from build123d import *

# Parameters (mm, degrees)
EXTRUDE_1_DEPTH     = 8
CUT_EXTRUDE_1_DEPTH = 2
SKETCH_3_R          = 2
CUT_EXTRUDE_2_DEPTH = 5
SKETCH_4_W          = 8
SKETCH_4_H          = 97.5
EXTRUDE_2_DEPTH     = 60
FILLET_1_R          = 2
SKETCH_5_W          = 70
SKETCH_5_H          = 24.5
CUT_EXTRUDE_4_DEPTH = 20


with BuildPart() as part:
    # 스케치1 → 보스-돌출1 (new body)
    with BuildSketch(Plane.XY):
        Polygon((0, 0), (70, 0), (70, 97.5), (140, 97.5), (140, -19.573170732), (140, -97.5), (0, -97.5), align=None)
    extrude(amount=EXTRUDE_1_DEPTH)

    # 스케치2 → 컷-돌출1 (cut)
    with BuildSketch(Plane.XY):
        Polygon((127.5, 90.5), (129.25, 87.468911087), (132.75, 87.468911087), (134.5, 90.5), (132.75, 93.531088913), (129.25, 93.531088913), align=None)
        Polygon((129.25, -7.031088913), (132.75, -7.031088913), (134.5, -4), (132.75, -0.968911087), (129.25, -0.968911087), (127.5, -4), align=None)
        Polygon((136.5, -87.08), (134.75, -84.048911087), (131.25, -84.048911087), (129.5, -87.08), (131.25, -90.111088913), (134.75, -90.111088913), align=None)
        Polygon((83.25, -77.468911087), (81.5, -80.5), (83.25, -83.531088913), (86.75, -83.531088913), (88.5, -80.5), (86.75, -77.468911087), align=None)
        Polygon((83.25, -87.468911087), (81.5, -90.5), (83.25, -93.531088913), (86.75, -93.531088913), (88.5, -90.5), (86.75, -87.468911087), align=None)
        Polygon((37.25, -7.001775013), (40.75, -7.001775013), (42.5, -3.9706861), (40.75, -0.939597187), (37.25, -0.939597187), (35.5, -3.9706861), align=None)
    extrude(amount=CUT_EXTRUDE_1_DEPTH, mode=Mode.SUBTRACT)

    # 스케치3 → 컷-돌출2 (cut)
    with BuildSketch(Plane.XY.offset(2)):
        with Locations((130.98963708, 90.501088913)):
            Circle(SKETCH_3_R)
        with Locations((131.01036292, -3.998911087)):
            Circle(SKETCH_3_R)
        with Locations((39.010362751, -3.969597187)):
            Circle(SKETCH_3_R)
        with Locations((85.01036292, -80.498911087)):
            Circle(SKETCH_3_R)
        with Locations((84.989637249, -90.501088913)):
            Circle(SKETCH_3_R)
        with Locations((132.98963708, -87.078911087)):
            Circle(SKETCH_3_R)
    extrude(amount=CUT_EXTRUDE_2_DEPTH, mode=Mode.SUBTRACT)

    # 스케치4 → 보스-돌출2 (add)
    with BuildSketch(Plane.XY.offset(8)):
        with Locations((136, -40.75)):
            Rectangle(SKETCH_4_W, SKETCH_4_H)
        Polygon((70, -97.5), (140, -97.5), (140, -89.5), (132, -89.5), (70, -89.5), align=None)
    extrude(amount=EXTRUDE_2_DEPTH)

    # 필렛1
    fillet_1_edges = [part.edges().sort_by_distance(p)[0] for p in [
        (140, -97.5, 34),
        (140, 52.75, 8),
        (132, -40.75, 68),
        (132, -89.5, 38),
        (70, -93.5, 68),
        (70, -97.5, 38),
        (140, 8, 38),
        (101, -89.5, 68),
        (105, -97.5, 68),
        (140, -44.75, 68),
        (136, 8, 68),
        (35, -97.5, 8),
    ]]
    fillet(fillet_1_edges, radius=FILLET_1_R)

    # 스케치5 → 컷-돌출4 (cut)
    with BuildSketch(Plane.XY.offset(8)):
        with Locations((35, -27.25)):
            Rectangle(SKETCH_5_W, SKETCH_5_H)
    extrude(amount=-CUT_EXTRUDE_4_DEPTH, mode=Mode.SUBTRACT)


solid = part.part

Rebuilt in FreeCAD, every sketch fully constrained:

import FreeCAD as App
import Part
import Sketcher
Q = App.Units.Quantity


def edges_at(feature, points):
    """Names of the edges that pass closest to the given points."""
    edges = feature.Shape.Edges
    near = lambda p: min(range(len(edges)), key=lambda i: edges[i].distToShape(Part.Vertex(*p))[0])
    return sorted({f"Edge{near(p) + 1}" for p in points})


def add_polygon(sketch, points):
    """Adds a closed chain of lines whose ends are joined by coincident constraints."""
    first, n = sketch.GeometryCount, len(points)
    for a, b in zip(points, points[1:] + points[:1]):
        sketch.addGeometry(Part.LineSegment(App.Vector(*a, 0), App.Vector(*b, 0)), False)
    for i in range(n):
        sketch.addConstraint(Sketcher.Constraint("Coincident", first + i, 2, first + (i + 1) % n, 1))

doc = App.newDocument("Part")
body = doc.addObject("PartDesign::Body", "Body")

sketch1 = body.newObject("Sketcher::SketchObject", "Sketch")
sketch1.AttachmentSupport = (doc.getObject("XY_Plane"), [""])
sketch1.MapMode = "FlatFace"
add_polygon(sketch1, [(70, 0), (0, 0), (0, -98), (140, -98), (140, 98), (70, 98)])
sketch1.addConstraint(Sketcher.Constraint("Horizontal", 0))
sketch1.addConstraint(Sketcher.Constraint("Vertical", 1))
sketch1.addConstraint(Sketcher.Constraint("Horizontal", 2))
sketch1.addConstraint(Sketcher.Constraint("Vertical", 3))
sketch1.addConstraint(Sketcher.Constraint("Horizontal", 4))
sketch1.addConstraint(Sketcher.Constraint("Vertical", 5))
sketch1.addConstraint(Sketcher.Constraint("Coincident", 0, 2, -1, 1))
sketch1.addConstraint(Sketcher.Constraint("Equal", 0, 4))
sketch1.addConstraint(Sketcher.Constraint("Equal", 1, 5))
sketch1.addConstraint(Sketcher.Constraint("DistanceX", 0, 2, 0, 1, 70.0))
sketch1.addConstraint(Sketcher.Constraint("DistanceY", 3, 1, 3, 2, 195.0))
pad1 = body.newObject("PartDesign::Pad", "Pad")
pad1.Profile = sketch1
pad1.Length = 8

sketch2 = body.newObject("Sketcher::SketchObject", "Sketch001")
sketch2.AttachmentSupport = (doc.getObject("XY_Plane"), [""])
sketch2.MapMode = "FlatFace"
add_polygon(sketch2, [(127.5, 90.5), (129.2, 87.5), (132.8, 87.5), (134.5, 90.5), (132.8, 93.5), (129.2, 93.5)])
add_polygon(sketch2, [(129.2, -7), (132.8, -7), (134.5, -4), (132.8, -1), (129.2, -1), (127.5, -4)])
add_polygon(sketch2, [(136.5, -87.1), (134.8, -84), (131.2, -84), (129.5, -87.1), (131.2, -90.1), (134.8, -90.1)])
add_polygon(sketch2, [(83.2, -77.5), (81.5, -80.5), (83.2, -83.5), (86.8, -83.5), (88.5, -80.5), (86.8, -77.5)])
add_polygon(sketch2, [(83.2, -87.5), (81.5, -90.5), (83.2, -93.5), (86.8, -93.5), (88.5, -90.5), (86.8, -87.5)])
add_polygon(sketch2, [(37.2, -7), (40.8, -7), (42.5, -4), (40.8, -0.9), (37.2, -0.9), (35.5, -4)])
sketch2.addConstraint(Sketcher.Constraint("Horizontal", 1))
sketch2.addConstraint(Sketcher.Constraint("Horizontal", 4))
sketch2.addConstraint(Sketcher.Constraint("Horizontal", 6))
sketch2.addConstraint(Sketcher.Constraint("Horizontal", 9))
sketch2.addConstraint(Sketcher.Constraint("Horizontal", 13))
sketch2.addConstraint(Sketcher.Constraint("Horizontal", 16))
sketch2.addConstraint(Sketcher.Constraint("Horizontal", 20))
sketch2.addConstraint(Sketcher.Constraint("Horizontal", 23))
sketch2.addConstraint(Sketcher.Constraint("Horizontal", 26))
sketch2.addConstraint(Sketcher.Constraint("Horizontal", 29))
sketch2.addConstraint(Sketcher.Constraint("Horizontal", 30))
sketch2.addConstraint(Sketcher.Constraint("Horizontal", 33))
sketch2.addConstraint(Sketcher.Constraint("Parallel", 0, 3))
sketch2.addConstraint(Sketcher.Constraint("Parallel", 2, 5))
sketch2.addConstraint(Sketcher.Constraint("Parallel", 5, 7))
sketch2.addConstraint(Sketcher.Constraint("Parallel", 3, 8))
sketch2.addConstraint(Sketcher.Constraint("Parallel", 7, 10))
sketch2.addConstraint(Sketcher.Constraint("Parallel", 8, 11))
sketch2.addConstraint(Sketcher.Constraint("Parallel", 11, 12))
sketch2.addConstraint(Sketcher.Constraint("Parallel", 10, 14))
sketch2.addConstraint(Sketcher.Constraint("Parallel", 12, 15))
sketch2.addConstraint(Sketcher.Constraint("Parallel", 14, 17))
sketch2.addConstraint(Sketcher.Constraint("Parallel", 17, 18))
sketch2.addConstraint(Sketcher.Constraint("Parallel", 15, 19))
sketch2.addConstraint(Sketcher.Constraint("Parallel", 18, 21))
sketch2.addConstraint(Sketcher.Constraint("Parallel", 19, 22))
sketch2.addConstraint(Sketcher.Constraint("Parallel", 21, 24))
sketch2.addConstraint(Sketcher.Constraint("Parallel", 22, 25))
sketch2.addConstraint(Sketcher.Constraint("Parallel", 24, 27))
sketch2.addConstraint(Sketcher.Constraint("Parallel", 25, 28))
sketch2.addConstraint(Sketcher.Constraint("Parallel", 27, 31))
sketch2.addConstraint(Sketcher.Constraint("Parallel", 28, 32))
sketch2.addConstraint(Sketcher.Constraint("Parallel", 31, 34))
sketch2.addConstraint(Sketcher.Constraint("Parallel", 32, 35))
sketch2.addConstraint(Sketcher.Constraint("Horizontal", 2, 2, 5, 2))
sketch2.addConstraint(Sketcher.Constraint("Horizontal", 7, 2, 10, 2))
sketch2.addConstraint(Sketcher.Constraint("Horizontal", 14, 2, 17, 2))
sketch2.addConstraint(Sketcher.Constraint("Horizontal", 18, 2, 21, 2))
sketch2.addConstraint(Sketcher.Constraint("Horizontal", 24, 2, 27, 2))
sketch2.addConstraint(Sketcher.Constraint("Horizontal", 31, 2, 34, 2))
sketch2.addConstraint(Sketcher.Constraint("Vertical", 1, 2, 3, 2))
sketch2.addConstraint(Sketcher.Constraint("Vertical", 0, 2, 4, 2))
sketch2.addConstraint(Sketcher.Constraint("Vertical", 3, 2, 6, 2))
sketch2.addConstraint(Sketcher.Constraint("Vertical", 2, 2, 7, 2))
sketch2.addConstraint(Sketcher.Constraint("Vertical", 6, 2, 8, 2))
sketch2.addConstraint(Sketcher.Constraint("Vertical", 4, 2, 9, 2))
sketch2.addConstraint(Sketcher.Constraint("Vertical", 13, 2, 15, 2))
sketch2.addConstraint(Sketcher.Constraint("Vertical", 20, 2, 22, 2))
sketch2.addConstraint(Sketcher.Constraint("Vertical", 18, 2, 24, 2))
sketch2.addConstraint(Sketcher.Constraint("Vertical", 23, 2, 25, 2))
sketch2.addConstraint(Sketcher.Constraint("Vertical", 22, 2, 26, 2))
sketch2.addConstraint(Sketcher.Constraint("Vertical", 26, 2, 28, 2))
sketch2.addConstraint(Sketcher.Constraint("Vertical", 30, 2, 32, 2))
sketch2.addConstraint(Sketcher.Constraint("Equal", 9, 13))
sketch2.addConstraint(Sketcher.Constraint("Equal", 16, 20))
sketch2.addConstraint(Sketcher.Constraint("Equal", 29, 30))
sketch2.addConstraint(Sketcher.Constraint("Equal", 11, 12))
sketch2.addConstraint(Sketcher.Constraint("Equal", 17, 18))
sketch2.addConstraint(Sketcher.Constraint("Equal", 28, 31))
sketch2.addConstraint(Sketcher.Constraint("Angle", 0, Q("-60 deg")))
sketch2.addConstraint(Sketcher.Constraint("DistanceX", 1, 1, 1, 2, 3.5))
sketch2.addConstraint(Sketcher.Constraint("DistanceY", 7, 2, -1, 1, 4.0))
sketch2.addConstraint(Sketcher.Constraint("DistanceX", 5, 2, 2, 2, 7.0))
sketch2.addConstraint(Sketcher.Constraint("DistanceX", 6, 2, 12, 2, 2.0))
sketch2.addConstraint(Sketcher.Constraint("DistanceX", 18, 2, 14, 2, 48.0))
sketch2.addConstraint(Sketcher.Constraint("DistanceY", 24, 2, 18, 2, 10.0))
sketch2.addConstraint(Sketcher.Constraint("DistanceX", 30, 2, 22, 2, 46.0))
sketch2.addConstraint(Sketcher.Constraint("DistanceX", -1, 1, 2, 2, 134.5))
sketch2.addConstraint(Sketcher.Constraint("DistanceY", -1, 1, 2, 2, 90.5))
sketch2.addConstraint(Sketcher.Constraint("DistanceY", 18, 2, -1, 1, 80.5))
sketch2.addConstraint(Sketcher.Constraint("DistanceY", 14, 2, -1, 1, 87.08))
sketch2.addConstraint(Sketcher.Constraint("DistanceY", 30, 2, -1, 1, 7.001775))
pocket1 = body.newObject("PartDesign::Pocket", "Pocket")
pocket1.Profile = sketch2
pocket1.Length = 2
pocket1.Reversed = True

sketch3 = body.newObject("Sketcher::SketchObject", "Sketch002")
sketch3.AttachmentSupport = (doc.getObject("XY_Plane"), [""])
sketch3.MapMode = "FlatFace"
sketch3.AttachmentOffset = App.Placement(App.Vector(0, 0, 2), App.Rotation())
sketch3.addGeometry(Part.Circle(App.Vector(131, 90.5, 0), App.Vector(0, 0, 1), 2), False)
sketch3.addGeometry(Part.Circle(App.Vector(131, -4, 0), App.Vector(0, 0, 1), 2), False)
sketch3.addGeometry(Part.Circle(App.Vector(39, -4, 0), App.Vector(0, 0, 1), 2), False)
sketch3.addGeometry(Part.Circle(App.Vector(85, -80.5, 0), App.Vector(0, 0, 1), 2), False)
sketch3.addGeometry(Part.Circle(App.Vector(85, -90.5, 0), App.Vector(0, 0, 1), 2), False)
sketch3.addGeometry(Part.Circle(App.Vector(133, -87.1, 0), App.Vector(0, 0, 1), 2), False)
sketch3.addConstraint(Sketcher.Constraint("Equal", 0, 1))
sketch3.addConstraint(Sketcher.Constraint("Equal", 1, 2))
sketch3.addConstraint(Sketcher.Constraint("Equal", 2, 3))
sketch3.addConstraint(Sketcher.Constraint("Equal", 3, 4))
sketch3.addConstraint(Sketcher.Constraint("Equal", 4, 5))
sketch3.addConstraint(Sketcher.Constraint("Diameter", 0, 4.0))
sketch3.addConstraint(Sketcher.Constraint("DistanceX", 2, 3, 1, 3, 92.0))
sketch3.addConstraint(Sketcher.Constraint("DistanceX", 3, 3, 1, 3, 46.0))
sketch3.addConstraint(Sketcher.Constraint("DistanceY", 3, 3, 0, 3, 171.0))
sketch3.addConstraint(Sketcher.Constraint("DistanceX", 4, 3, 0, 3, 46.0))
sketch3.addConstraint(Sketcher.Constraint("DistanceX", 4, 3, 5, 3, 48.0))
sketch3.addConstraint(Sketcher.Constraint("DistanceY", 1, 3, 0, 3, 94.5))
sketch3.addConstraint(Sketcher.Constraint("DistanceY", 5, 3, 3, 3, 6.58))
sketch3.addConstraint(Sketcher.Constraint("DistanceY", -1, 1, 0, 3, 90.501089))
sketch3.addConstraint(Sketcher.Constraint("DistanceY", 4, 3, -1, 1, 90.501089))
sketch3.addConstraint(Sketcher.Constraint("DistanceY", 4, 3, 2, 3, 86.531492))
sketch3.addConstraint(Sketcher.Constraint("DistanceX", -1, 1, 0, 3, 130.989637))
sketch3.addConstraint(Sketcher.Constraint("DistanceX", -1, 1, 1, 3, 131.010363))
pocket2 = body.newObject("PartDesign::Pocket", "Pocket001")
pocket2.Profile = sketch3
pocket2.Length = 5
pocket2.Reversed = True

sketch4 = body.newObject("Sketcher::SketchObject", "Sketch003")
sketch4.AttachmentSupport = (doc.getObject("XY_Plane"), [""])
sketch4.MapMode = "FlatFace"
sketch4.AttachmentOffset = App.Placement(App.Vector(0, 0, 8), App.Rotation())
add_polygon(sketch4, [(132, 8), (132, -90), (70, -90), (70, -98), (140, -98), (140, 8)])
sketch4.addConstraint(Sketcher.Constraint("Vertical", 0))
sketch4.addConstraint(Sketcher.Constraint("Horizontal", 1))
sketch4.addConstraint(Sketcher.Constraint("Vertical", 2))
sketch4.addConstraint(Sketcher.Constraint("Horizontal", 3))
sketch4.addConstraint(Sketcher.Constraint("Vertical", 4))
sketch4.addConstraint(Sketcher.Constraint("Horizontal", 5))
sketch4.addConstraint(Sketcher.Constraint("Equal", 5, 2))
sketch4.addConstraint(Sketcher.Constraint("DistanceX", 1, 2, 1, 1, 62.0))
sketch4.addConstraint(Sketcher.Constraint("DistanceX", 3, 1, 3, 2, 70.0))
sketch4.addConstraint(Sketcher.Constraint("DistanceY", 0, 2, 0, 1, 97.5))
sketch4.addConstraint(Sketcher.Constraint("DistanceX", -1, 1, 0, 2, 132.0))
sketch4.addConstraint(Sketcher.Constraint("DistanceY", -1, 1, 4, 2, 8.0))
pad2 = body.newObject("PartDesign::Pad", "Pad001")
pad2.Profile = sketch4
pad2.Length = 60
doc.recompute()

fillet = body.newObject("PartDesign::Fillet", "Fillet")
fillet.Base = (pad2, edges_at(pad2, [
    (140, -97.5, 34),
    (140, 52.75, 8),
    (132, -40.75, 68),
    (132, -89.5, 38),
    (70, -93.5, 68),
    (70, -97.5, 38),
    (140, 8, 38),
    (101, -89.5, 68),
    (105, -97.5, 68),
    (140, -44.75, 68),
    (136, 8, 68),
    (35, -97.5, 8),
]))
fillet.Radius = 2

sketch5 = body.newObject("Sketcher::SketchObject", "Sketch004")
sketch5.AttachmentSupport = (doc.getObject("XY_Plane"), [""])
sketch5.MapMode = "FlatFace"
sketch5.AttachmentOffset = App.Placement(App.Vector(0, 0, 8), App.Rotation())
add_polygon(sketch5, [(0, -15), (0, -40), (70, -40), (70, -15)])
sketch5.addConstraint(Sketcher.Constraint("Vertical", 0))
sketch5.addConstraint(Sketcher.Constraint("Horizontal", 1))
sketch5.addConstraint(Sketcher.Constraint("Vertical", 2))
sketch5.addConstraint(Sketcher.Constraint("Horizontal", 3))
sketch5.addConstraint(Sketcher.Constraint("PointOnObject", 0, 2, -2))
sketch5.addConstraint(Sketcher.Constraint("DistanceX", 1, 1, 1, 2, 70.0))
sketch5.addConstraint(Sketcher.Constraint("DistanceY", 0, 2, 0, 1, 24.5))
sketch5.addConstraint(Sketcher.Constraint("DistanceY", 2, 2, -1, 1, 15.0))
pocket3 = body.newObject("PartDesign::Pocket", "Pocket002")
pocket3.Profile = sketch5
pocket3.Length = 20

doc.recompute()
